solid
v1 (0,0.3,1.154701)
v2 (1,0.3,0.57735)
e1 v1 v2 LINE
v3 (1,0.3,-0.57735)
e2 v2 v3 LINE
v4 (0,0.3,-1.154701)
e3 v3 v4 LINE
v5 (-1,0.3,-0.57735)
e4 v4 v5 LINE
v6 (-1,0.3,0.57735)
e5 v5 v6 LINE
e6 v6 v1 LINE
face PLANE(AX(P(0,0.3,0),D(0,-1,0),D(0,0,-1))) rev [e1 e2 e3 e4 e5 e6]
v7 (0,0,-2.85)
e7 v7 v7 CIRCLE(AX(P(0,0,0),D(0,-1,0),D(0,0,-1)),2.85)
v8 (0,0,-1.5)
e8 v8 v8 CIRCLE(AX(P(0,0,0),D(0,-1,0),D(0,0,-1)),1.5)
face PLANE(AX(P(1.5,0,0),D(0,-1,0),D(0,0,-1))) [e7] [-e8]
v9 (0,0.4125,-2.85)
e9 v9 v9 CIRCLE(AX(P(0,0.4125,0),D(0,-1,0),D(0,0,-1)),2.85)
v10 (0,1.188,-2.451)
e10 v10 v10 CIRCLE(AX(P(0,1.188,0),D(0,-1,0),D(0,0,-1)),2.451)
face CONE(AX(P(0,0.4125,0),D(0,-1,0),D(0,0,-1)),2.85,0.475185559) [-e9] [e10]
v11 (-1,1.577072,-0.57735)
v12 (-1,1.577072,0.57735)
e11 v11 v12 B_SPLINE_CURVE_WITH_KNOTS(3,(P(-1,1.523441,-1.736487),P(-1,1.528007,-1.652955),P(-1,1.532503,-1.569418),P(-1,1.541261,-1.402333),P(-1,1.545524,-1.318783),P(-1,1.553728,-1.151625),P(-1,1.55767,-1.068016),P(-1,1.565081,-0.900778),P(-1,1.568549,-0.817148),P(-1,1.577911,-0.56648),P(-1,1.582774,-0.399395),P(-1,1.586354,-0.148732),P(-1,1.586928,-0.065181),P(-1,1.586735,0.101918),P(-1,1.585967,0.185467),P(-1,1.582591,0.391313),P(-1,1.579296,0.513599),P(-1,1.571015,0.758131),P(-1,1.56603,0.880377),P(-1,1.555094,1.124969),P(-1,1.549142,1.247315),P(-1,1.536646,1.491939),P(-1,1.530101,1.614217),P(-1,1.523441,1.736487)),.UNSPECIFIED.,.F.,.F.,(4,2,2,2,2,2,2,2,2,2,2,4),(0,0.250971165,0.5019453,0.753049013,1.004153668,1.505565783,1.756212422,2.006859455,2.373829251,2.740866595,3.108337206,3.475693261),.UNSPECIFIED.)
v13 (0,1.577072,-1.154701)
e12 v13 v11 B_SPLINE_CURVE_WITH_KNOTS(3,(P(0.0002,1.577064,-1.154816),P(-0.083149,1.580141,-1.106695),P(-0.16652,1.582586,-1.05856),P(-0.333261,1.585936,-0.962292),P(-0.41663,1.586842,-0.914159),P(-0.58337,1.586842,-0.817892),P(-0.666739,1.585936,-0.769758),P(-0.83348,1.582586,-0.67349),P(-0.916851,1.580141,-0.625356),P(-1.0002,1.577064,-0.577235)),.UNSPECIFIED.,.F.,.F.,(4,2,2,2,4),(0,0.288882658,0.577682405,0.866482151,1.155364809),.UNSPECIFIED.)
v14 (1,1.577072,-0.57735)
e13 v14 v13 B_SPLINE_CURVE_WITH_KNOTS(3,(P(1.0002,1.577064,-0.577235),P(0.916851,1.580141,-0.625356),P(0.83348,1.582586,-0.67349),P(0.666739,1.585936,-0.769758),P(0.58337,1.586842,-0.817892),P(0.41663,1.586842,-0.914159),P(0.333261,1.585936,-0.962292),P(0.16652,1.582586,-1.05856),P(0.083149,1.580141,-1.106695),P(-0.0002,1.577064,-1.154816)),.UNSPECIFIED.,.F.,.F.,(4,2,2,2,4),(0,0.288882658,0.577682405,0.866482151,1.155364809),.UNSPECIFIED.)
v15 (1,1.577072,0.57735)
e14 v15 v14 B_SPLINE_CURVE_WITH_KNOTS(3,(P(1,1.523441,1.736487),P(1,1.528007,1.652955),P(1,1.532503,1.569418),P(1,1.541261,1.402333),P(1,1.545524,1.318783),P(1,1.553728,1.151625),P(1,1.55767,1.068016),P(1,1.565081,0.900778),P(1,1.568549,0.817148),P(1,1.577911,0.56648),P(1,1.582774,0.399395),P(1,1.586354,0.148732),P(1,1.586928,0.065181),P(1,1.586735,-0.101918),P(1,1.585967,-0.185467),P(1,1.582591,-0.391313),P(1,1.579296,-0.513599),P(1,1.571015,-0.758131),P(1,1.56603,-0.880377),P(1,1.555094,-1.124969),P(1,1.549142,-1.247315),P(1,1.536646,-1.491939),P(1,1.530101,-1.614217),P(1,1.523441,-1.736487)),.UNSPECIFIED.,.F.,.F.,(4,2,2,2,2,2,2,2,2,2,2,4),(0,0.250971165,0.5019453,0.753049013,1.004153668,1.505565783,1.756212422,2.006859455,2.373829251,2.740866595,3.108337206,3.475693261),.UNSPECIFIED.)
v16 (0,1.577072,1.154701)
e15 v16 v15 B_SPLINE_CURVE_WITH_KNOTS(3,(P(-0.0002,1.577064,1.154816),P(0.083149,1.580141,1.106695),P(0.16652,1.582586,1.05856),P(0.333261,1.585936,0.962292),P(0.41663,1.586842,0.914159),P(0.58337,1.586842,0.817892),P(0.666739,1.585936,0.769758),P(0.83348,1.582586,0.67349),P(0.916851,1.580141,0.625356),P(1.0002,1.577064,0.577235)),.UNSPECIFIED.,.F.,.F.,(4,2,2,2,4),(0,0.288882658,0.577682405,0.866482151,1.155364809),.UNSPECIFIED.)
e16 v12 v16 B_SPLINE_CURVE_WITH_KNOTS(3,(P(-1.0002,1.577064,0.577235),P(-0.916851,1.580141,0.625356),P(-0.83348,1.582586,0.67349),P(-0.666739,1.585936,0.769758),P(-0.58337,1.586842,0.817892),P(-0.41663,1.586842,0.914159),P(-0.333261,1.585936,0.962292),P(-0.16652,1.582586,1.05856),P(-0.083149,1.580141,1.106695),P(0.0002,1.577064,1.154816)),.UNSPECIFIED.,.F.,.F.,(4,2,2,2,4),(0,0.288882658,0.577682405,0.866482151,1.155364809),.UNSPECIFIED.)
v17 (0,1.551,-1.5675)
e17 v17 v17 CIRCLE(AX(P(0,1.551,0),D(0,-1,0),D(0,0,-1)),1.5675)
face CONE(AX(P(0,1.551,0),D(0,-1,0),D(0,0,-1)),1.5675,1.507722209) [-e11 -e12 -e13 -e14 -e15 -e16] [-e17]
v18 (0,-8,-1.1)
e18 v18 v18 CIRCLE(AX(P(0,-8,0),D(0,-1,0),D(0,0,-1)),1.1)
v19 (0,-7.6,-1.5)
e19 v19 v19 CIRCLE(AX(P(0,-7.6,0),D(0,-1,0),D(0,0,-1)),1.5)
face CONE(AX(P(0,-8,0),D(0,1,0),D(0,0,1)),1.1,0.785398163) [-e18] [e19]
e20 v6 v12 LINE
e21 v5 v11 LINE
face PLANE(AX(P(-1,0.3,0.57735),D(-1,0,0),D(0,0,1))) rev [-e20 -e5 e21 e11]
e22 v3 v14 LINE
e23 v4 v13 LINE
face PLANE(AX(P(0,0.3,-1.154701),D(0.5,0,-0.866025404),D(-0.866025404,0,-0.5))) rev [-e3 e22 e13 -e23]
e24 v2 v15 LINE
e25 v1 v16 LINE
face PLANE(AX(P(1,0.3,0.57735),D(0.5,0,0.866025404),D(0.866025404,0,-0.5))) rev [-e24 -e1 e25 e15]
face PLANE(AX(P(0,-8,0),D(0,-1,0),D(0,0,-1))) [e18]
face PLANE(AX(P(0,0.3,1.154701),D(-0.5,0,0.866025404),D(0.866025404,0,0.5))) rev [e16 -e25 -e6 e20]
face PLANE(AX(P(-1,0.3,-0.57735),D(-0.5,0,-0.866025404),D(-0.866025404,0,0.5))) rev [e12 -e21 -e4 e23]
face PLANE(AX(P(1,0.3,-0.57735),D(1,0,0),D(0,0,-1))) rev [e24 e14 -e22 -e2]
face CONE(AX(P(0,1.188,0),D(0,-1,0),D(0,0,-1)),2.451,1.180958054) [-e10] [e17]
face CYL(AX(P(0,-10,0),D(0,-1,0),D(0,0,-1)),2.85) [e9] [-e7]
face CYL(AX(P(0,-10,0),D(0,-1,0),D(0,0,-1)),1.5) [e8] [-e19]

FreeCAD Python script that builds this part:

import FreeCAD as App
import Part
import Sketcher
from FreeCAD import Vector
Q = App.Units.Quantity

doc = App.newDocument("Part")
body = doc.addObject("PartDesign::Body", "Body")

# Sketch on XY plane
sketch1 = body.newObject("Sketcher::SketchObject", "Sketch")
sketch1.AttachmentSupport = (doc.getObject("XY_Plane"), [""])
sketch1.MapMode = "FlatFace"
sketch1.addGeometry([
    Part.LineSegment(Vector(0, -8, 0), Vector(1.1, -8, 0)),  # 0
    Part.LineSegment(Vector(1.1, -8, 0), Vector(1.5, -7.6, 0)),  # 1
    Part.LineSegment(Vector(1.5, -7.6, 0), Vector(1.5, 0, 0)),  # 2
    Part.LineSegment(Vector(1.5, 0, 0), Vector(2.85, 0, 0)),  # 3
    Part.LineSegment(Vector(2.85, 0, 0), Vector(2.85, 0.41, 0)),  # 4
    Part.LineSegment(Vector(2.85, 0.41, 0), Vector(2.45, 1.19, 0)),  # 5
    Part.LineSegment(Vector(2.45, 1.19, 0), Vector(1.57, 1.55, 0)),  # 6
    Part.LineSegment(Vector(1.57, 1.55, 0), Vector(0, 1.65, 0)),  # 7
    Part.LineSegment(Vector(0, 1.65, 0), Vector(0, -8, 0)),  # 8
], False)
sketch1.addConstraint([
    Sketcher.Constraint("Coincident", 0, 2, 1, 1),
    Sketcher.Constraint("Coincident", 1, 2, 2, 1),
    Sketcher.Constraint("Coincident", 2, 2, 3, 1),
    Sketcher.Constraint("Coincident", 3, 2, 4, 1),
    Sketcher.Constraint("Coincident", 4, 2, 5, 1),
    Sketcher.Constraint("Coincident", 5, 2, 6, 1),
    Sketcher.Constraint("Coincident", 6, 2, 7, 1),
    Sketcher.Constraint("Coincident", 7, 2, 8, 1),
    Sketcher.Constraint("Coincident", 8, 2, 0, 1),
    Sketcher.Constraint("Horizontal", 0),
    Sketcher.Constraint("Vertical", 2),
    Sketcher.Constraint("Horizontal", 3),
    Sketcher.Constraint("Vertical", 4),
    Sketcher.Constraint("Vertical", 8),
    Sketcher.Constraint("PointOnObject", 2, 2, -1),
    Sketcher.Constraint("PointOnObject", 7, 2, -2),
    Sketcher.Constraint("Angle", 1, Q("45 deg")),
    Sketcher.Constraint("DistanceX", 0, 1, 0, 2, Q("1.1 mm")),
    Sketcher.Constraint("DistanceY", 2, 1, 2, 2, Q("7.6 mm")),
    Sketcher.Constraint("DistanceY", 0, 2, -1, 1, Q("8 mm")),
    Sketcher.Constraint("DistanceX", 3, 1, 3, 2, Q("1.35 mm")),
    Sketcher.Constraint("DistanceY", 8, 2, 8, 1, Q("9.65 mm")),
    Sketcher.Constraint("DistanceY", 4, 1, 4, 2, Q("0.4125 mm")),
    Sketcher.Constraint("DistanceX", -1, 1, 5, 2, Q("2.451 mm")),
    Sketcher.Constraint("DistanceY", -1, 1, 5, 2, Q("1.188 mm")),
    Sketcher.Constraint("DistanceY", -1, 1, 6, 2, Q("1.551 mm")),
    Sketcher.Constraint("DistanceX", -1, 1, 6, 2, Q("1.5675 mm")),
])
revolution = body.newObject("PartDesign::Revolution", "Revolution")
revolution.Profile = sketch1
revolution.ReferenceAxis = (sketch1, ["V_Axis"])
revolution.Angle = 360

# Sketch on XZ plane
sketch2 = body.newObject("Sketcher::SketchObject", "Sketch001")
sketch2.AttachmentSupport = (doc.getObject("XZ_Plane"), [""])
sketch2.MapMode = "FlatFace"
sketch2.AttachmentOffset = App.Placement(Vector(0, 0, -1.65), App.Rotation())
sketch2.addGeometry([
    Part.LineSegment(Vector(0, 1.2, 0), Vector(1, 0.6, 0)),  # 0
    Part.LineSegment(Vector(1, 0.6, 0), Vector(1, -0.6, 0)),  # 1
    Part.LineSegment(Vector(1, -0.6, 0), Vector(0, -1.2, 0)),  # 2
    Part.LineSegment(Vector(0, -1.2, 0), Vector(-1, -0.6, 0)),  # 3
    Part.LineSegment(Vector(-1, -0.6, 0), Vector(-1, 0.6, 0)),  # 4
    Part.LineSegment(Vector(-1, 0.6, 0), Vector(0, 1.2, 0)),  # 5
], False)
sketch2.addConstraint([
    Sketcher.Constraint("Coincident", 0, 2, 1, 1),
    Sketcher.Constraint("Coincident", 1, 2, 2, 1),
    Sketcher.Constraint("Coincident", 2, 2, 3, 1),
    Sketcher.Constraint("Coincident", 3, 2, 4, 1),
    Sketcher.Constraint("Coincident", 4, 2, 5, 1),
    Sketcher.Constraint("Coincident", 5, 2, 0, 1),
    Sketcher.Constraint("Vertical", 1),
    Sketcher.Constraint("Vertical", 4),
    Sketcher.Constraint("Symmetric", 0, 2, 3, 2, -1, 1),
    Sketcher.Constraint("Symmetric", 2, 2, 5, 2, -1, 1),
    Sketcher.Constraint("PointOnObject", 2, 2, -2),
    Sketcher.Constraint("Parallel", 2, 5),
    Sketcher.Constraint("Horizontal", 1, 2, 3, 2),
    Sketcher.Constraint("Angle", 0, Q("-30 deg")),
    Sketcher.Constraint("DistanceX", -1, 1, 0, 2, Q("1 mm")),
    Sketcher.Constraint("DistanceY", 1, 2, 1, 1, Q("1.154701 mm")),
])
pocket1 = body.newObject("PartDesign::Pocket", "Pocket")
pocket1.Profile = sketch2
pocket1.Length = 1.35
pocket1.Reversed = True

doc.recompute()
